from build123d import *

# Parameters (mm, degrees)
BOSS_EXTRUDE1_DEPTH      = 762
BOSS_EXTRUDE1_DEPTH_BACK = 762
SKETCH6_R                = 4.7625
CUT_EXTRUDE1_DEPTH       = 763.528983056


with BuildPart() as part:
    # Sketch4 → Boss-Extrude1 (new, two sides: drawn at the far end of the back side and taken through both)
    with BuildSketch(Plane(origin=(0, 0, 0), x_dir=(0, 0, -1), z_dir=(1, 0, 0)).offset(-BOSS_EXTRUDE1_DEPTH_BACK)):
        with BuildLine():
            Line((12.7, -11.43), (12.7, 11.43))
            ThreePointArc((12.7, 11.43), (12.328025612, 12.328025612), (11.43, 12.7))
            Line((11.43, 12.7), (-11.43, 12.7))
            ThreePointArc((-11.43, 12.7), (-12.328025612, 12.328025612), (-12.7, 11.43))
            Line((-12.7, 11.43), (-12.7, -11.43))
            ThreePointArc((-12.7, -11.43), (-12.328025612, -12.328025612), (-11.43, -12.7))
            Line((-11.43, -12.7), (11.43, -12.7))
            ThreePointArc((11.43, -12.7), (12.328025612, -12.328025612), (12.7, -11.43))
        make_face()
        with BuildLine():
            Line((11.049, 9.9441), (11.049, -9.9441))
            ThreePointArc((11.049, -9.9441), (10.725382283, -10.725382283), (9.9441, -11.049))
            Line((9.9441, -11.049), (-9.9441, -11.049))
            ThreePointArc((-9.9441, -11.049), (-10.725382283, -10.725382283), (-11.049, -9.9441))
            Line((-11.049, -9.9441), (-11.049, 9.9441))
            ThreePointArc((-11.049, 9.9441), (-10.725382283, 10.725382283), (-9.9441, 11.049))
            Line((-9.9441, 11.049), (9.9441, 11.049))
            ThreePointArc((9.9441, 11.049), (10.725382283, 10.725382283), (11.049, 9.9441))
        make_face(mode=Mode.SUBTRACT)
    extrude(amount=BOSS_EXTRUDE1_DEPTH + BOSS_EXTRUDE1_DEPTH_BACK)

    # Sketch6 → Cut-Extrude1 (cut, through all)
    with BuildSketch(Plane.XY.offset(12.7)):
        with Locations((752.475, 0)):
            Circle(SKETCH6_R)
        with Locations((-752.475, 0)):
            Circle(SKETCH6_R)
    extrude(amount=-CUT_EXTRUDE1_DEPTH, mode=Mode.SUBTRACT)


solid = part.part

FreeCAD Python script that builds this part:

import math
import FreeCAD as App
import Part
import Sketcher
Q = App.Units.Quantity

doc = App.newDocument("Part")
params = doc.addObject("Spreadsheet::Sheet", "Params")
for row, (alias, value) in enumerate([
    ("sketch1_radius", "0.05 in"),
    ("sketch1_width", "0.9 in"),
    ("sketch1_width2", "0.783 in"),
    ("pad1_length", "30 in"),
    ("pad1_length2", "30 in"),
    ("sketch2_diameter", "0.375 in"),
], start=1):
    params.set(f"A{row}", alias)
    params.set(f"B{row}", "=" + value)
    params.setAlias(f"B{row}", alias)

body = doc.addObject("PartDesign::Body", "Body")

sketch1 = doc.addObject("Sketcher::SketchObject", "Sketch")
body.addObject(sketch1)
sketch1.AttachmentSupport = (doc.YZ_Plane, [""])
sketch1.MapMode = "FlatFace"
sketch1.addGeometry([
    Part.LineSegment(App.Vector(-11.43, -12.7, 0), App.Vector(11.43, -12.7, 0)),
    Part.ArcOfCircle(Part.Circle(App.Vector(11.43, -11.43, 0), App.Vector(0, 0, 1), 1.27), math.radians(-90), math.radians(0)),
    Part.LineSegment(App.Vector(12.7, -11.43, 0), App.Vector(12.7, 11.43, 0)),
    Part.ArcOfCircle(Part.Circle(App.Vector(11.43, 11.43, 0), App.Vector(0, 0, 1), 1.27), math.radians(0), math.radians(90)),
    Part.LineSegment(App.Vector(11.43, 12.7, 0), App.Vector(-11.43, 12.7, 0)),
    Part.ArcOfCircle(Part.Circle(App.Vector(-11.43, 11.43, 0), App.Vector(0, 0, 1), 1.27), math.radians(90), math.radians(180)),
    Part.LineSegment(App.Vector(-12.7, 11.43, 0), App.Vector(-12.7, -11.43, 0)),
    Part.ArcOfCircle(Part.Circle(App.Vector(-11.43, -11.43, 0), App.Vector(0, 0, 1), 1.27), math.radians(180), math.radians(270)),
    Part.ArcOfCircle(Part.Circle(App.Vector(9.9441, -9.9441, 0), App.Vector(0, 0, 1), 1.1049), math.radians(-90), math.radians(0)),
    Part.LineSegment(App.Vector(9.9441, -11.049, 0), App.Vector(-9.9441, -11.049, 0)),
    Part.ArcOfCircle(Part.Circle(App.Vector(-9.9441, -9.9441, 0), App.Vector(0, 0, 1), 1.1049), math.radians(180), math.radians(270)),
    Part.LineSegment(App.Vector(-11.049, -9.9441, 0), App.Vector(-11.049, 9.9441, 0)),
    Part.ArcOfCircle(Part.Circle(App.Vector(-9.9441, 9.9441, 0), App.Vector(0, 0, 1), 1.1049), math.radians(90), math.radians(180)),
    Part.LineSegment(App.Vector(-9.9441, 11.049, 0), App.Vector(9.9441, 11.049, 0)),
    Part.ArcOfCircle(Part.Circle(App.Vector(9.9441, 9.9441, 0), App.Vector(0, 0, 1), 1.1049), math.radians(0), math.radians(90)),
    Part.LineSegment(App.Vector(11.049, 9.9441, 0), App.Vector(11.049, -9.9441, 0)),
], False)
sketch1.addConstraint([
    Sketcher.Constraint("Tangent", 0, 2, 1, 1),
    Sketcher.Constraint("Tangent", 1, 2, 2, 1),
    Sketcher.Constraint("Tangent", 2, 2, 3, 1),
    Sketcher.Constraint("Tangent", 3, 2, 4, 1),
    Sketcher.Constraint("Tangent", 4, 2, 5, 1),
    Sketcher.Constraint("Tangent", 5, 2, 6, 1),
    Sketcher.Constraint("Tangent", 6, 2, 7, 1),
    Sketcher.Constraint("Tangent", 7, 2, 0, 1),
    Sketcher.Constraint("Tangent", 8, 1, 9, 1),
    Sketcher.Constraint("Tangent", 9, 2, 10, 2),
    Sketcher.Constraint("Tangent", 10, 1, 11, 1),
    Sketcher.Constraint("Tangent", 11, 2, 12, 2),
    Sketcher.Constraint("Tangent", 12, 1, 13, 1),
    Sketcher.Constraint("Tangent", 13, 2, 14, 2),
    Sketcher.Constraint("Tangent", 14, 1, 15, 1),
    Sketcher.Constraint("Tangent", 15, 2, 8, 2),
    Sketcher.Constraint("Horizontal", 0),
    Sketcher.Constraint("Vertical", 2),
    Sketcher.Constraint("Horizontal", 4),
    Sketcher.Constraint("Vertical", 6),
    Sketcher.Constraint("Horizontal", 9),
    Sketcher.Constraint("Vertical", 11),
    Sketcher.Constraint("Horizontal", 13),
    Sketcher.Constraint("Vertical", 15),
    Sketcher.Constraint("Equal", 1, 3),
    Sketcher.Constraint("Equal", 3, 5),
    Sketcher.Constraint("Equal", 5, 7),
    Sketcher.Constraint("Equal", 8, 10),
    Sketcher.Constraint("Equal", 10, 12),
    Sketcher.Constraint("Equal", 12, 14),
    Sketcher.Constraint("Symmetric", 1, 3, 5, 3, -1, 1),
    Sketcher.Constraint("Symmetric", 8, 3, 12, 3, -1, 1),
    Sketcher.Constraint("Equal", 4, 2),
    Sketcher.Constraint("Equal", 13, 11),
    Sketcher.Constraint("Radius", 1, Q("0.05 in")),
    Sketcher.Constraint("DistanceX", 0, 1, 0, 2, Q("0.9 in")),
    Sketcher.Constraint("Radius", 8, Q("0.0435 in")),
    Sketcher.Constraint("DistanceX", 9, 2, 9, 1, Q("0.783 in")),
])
sketch1.setExpression("Constraints[34]", "Params.sketch1_radius")
sketch1.setExpression("Constraints[35]", "Params.sketch1_width")
sketch1.setExpression("Constraints[37]", "Params.sketch1_width2")
pad1 = doc.addObject("PartDesign::Pad", "Pad")
body.addObject(pad1)
pad1.Profile = sketch1
pad1.Type = "TwoLengths"
pad1.setExpression("Length", "Params.pad1_length")
pad1.setExpression("Length2", "Params.pad1_length2")

sketch2 = doc.addObject("Sketcher::SketchObject", "Sketch001")
body.addObject(sketch2)
sketch2.AttachmentSupport = (doc.XY_Plane, [""])
sketch2.MapMode = "FlatFace"
sketch2.AttachmentOffset = App.Placement(App.Vector(0, 0, 0.5 * 25.4), App.Rotation())
sketch2.addGeometry([
    Part.Circle(App.Vector(752.475, 0, 0), App.Vector(0, 0, 1), 4.7625),
    Part.Circle(App.Vector(-752.475, 0, 0), App.Vector(0, 0, 1), 4.7625),
], False)
sketch2.addConstraint([
    Sketcher.Constraint("Equal", 0, 1),
    Sketcher.Constraint("Symmetric", 0, 3, 1, 3, -1, 1),
    Sketcher.Constraint("PointOnObject", 0, 3, -1),
    Sketcher.Constraint("Diameter", 0, Q("0.375 in")),
    Sketcher.Constraint("DistanceX", 1, 3, 0, 3, Q("59.25 in")),
])
sketch2.setExpression("Constraints[3]", "Params.sketch2_diameter")
pocket1 = doc.addObject("PartDesign::Pocket", "Pocket")
body.addObject(pocket1)
pocket1.Profile = sketch2
pocket1.Type = "ThroughAll"

doc.recompute()
